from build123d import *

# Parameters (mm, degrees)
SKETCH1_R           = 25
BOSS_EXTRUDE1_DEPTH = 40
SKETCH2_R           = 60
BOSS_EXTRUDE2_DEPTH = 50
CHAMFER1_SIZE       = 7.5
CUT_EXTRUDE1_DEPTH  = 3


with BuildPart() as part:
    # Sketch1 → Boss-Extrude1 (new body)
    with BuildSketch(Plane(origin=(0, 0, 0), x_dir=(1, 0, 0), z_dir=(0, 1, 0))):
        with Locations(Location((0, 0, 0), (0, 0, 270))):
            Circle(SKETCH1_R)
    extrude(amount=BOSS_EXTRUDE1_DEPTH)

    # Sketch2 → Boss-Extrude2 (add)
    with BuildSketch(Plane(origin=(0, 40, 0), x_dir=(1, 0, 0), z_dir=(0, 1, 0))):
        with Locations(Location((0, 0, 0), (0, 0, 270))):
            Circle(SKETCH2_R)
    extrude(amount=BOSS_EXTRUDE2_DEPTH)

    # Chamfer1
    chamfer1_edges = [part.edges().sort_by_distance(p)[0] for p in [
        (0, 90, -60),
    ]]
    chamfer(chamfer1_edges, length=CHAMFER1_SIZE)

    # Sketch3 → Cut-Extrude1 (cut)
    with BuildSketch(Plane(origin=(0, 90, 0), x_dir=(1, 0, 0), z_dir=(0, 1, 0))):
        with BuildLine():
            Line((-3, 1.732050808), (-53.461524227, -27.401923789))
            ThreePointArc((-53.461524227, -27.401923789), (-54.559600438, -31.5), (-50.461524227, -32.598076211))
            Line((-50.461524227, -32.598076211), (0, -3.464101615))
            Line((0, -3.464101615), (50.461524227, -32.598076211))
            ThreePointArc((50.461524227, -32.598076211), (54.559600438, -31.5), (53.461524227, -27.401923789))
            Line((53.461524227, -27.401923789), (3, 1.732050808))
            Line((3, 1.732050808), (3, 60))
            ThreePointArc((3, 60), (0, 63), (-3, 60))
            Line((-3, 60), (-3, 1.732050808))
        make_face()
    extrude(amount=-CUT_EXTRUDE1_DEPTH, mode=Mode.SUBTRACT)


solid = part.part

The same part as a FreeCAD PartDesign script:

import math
import FreeCAD as App
import Part
import Sketcher

V = App.Vector
Q = App.Units.Quantity


def edges_at(feature, points):
    """Names of the edges that pass closest to the given points."""
    edges = feature.Shape.Edges
    near = lambda p: min(range(len(edges)), key=lambda i: edges[i].distToShape(Part.Vertex(*p))[0])
    return sorted({f"Edge{near(p) + 1}" for p in points})

doc = App.newDocument("Part")
body = doc.addObject("PartDesign::Body", "Body")

# Sketch on XZ plane
sketch1 = doc.addObject("Sketcher::SketchObject", "Sketch")
body.addObject(sketch1)
sketch1.AttachmentSupport = (doc.XZ_Plane, [""])
sketch1.MapMode = "FlatFace"
sketch1.addGeometry(Part.Circle(V(0, 0, 0), V(0, 0, 1), 25), False)
sketch1.addConstraint(Sketcher.Constraint("Coincident", 0, 3, -1, 1))
sketch1.addConstraint(Sketcher.Constraint("Diameter", 0, Q("50 mm")))
pad1 = doc.addObject("PartDesign::Pad", "Pad")
body.addObject(pad1)
pad1.Profile = sketch1
pad1.Length = 40
pad1.Reversed = True

# Sketch on XZ plane
sketch2 = doc.addObject("Sketcher::SketchObject", "Sketch001")
body.addObject(sketch2)
sketch2.AttachmentSupport = (doc.XZ_Plane, [""])
sketch2.MapMode = "FlatFace"
sketch2.AttachmentOffset = App.Placement(V(0, 0, -40), App.Rotation())
sketch2.addGeometry(Part.Circle(V(0, 0, 0), V(0, 0, 1), 60), False)
sketch2.addConstraint(Sketcher.Constraint("Coincident", 0, 3, -1, 1))
sketch2.addConstraint(Sketcher.Constraint("Diameter", 0, Q("120 mm")))
pad2 = doc.addObject("PartDesign::Pad", "Pad001")
body.addObject(pad2)
pad2.Profile = sketch2
pad2.Length = 50
pad2.Reversed = True
doc.recompute()

chamfer = doc.addObject("PartDesign::Chamfer", "Chamfer")
body.addObject(chamfer)
chamfer.Base = (pad2, edges_at(pad2, [(0, 90, -60)]))
chamfer.Size = 7.5

# Sketch on XZ plane
sketch3 = doc.addObject("Sketcher::SketchObject", "Sketch002")
body.addObject(sketch3)
sketch3.AttachmentSupport = (doc.XZ_Plane, [""])
sketch3.MapMode = "FlatFace"
sketch3.AttachmentOffset = App.Placement(V(0, 0, -90), App.Rotation())
sketch3.addGeometry(Part.LineSegment(V(-3, -1.7, 0), V(-53.5, 27.4, 0)), False)
sketch3.addGeometry(Part.ArcOfCircle(Part.Circle(V(-52, 30, 0), V(0, 0, 1), 3), math.radians(60), math.radians(240)), False)
sketch3.addGeometry(Part.LineSegment(V(-50.5, 32.6, 0), V(0, 3.5, 0)), False)
sketch3.addGeometry(Part.LineSegment(V(0, 3.5, 0), V(50.5, 32.6, 0)), False)
sketch3.addGeometry(Part.ArcOfCircle(Part.Circle(V(52, 30, 0), V(0, 0, 1), 3), math.radians(-60), math.radians(120)), False)
sketch3.addGeometry(Part.LineSegment(V(53.5, 27.4, 0), V(3, -1.7, 0)), False)
sketch3.addGeometry(Part.LineSegment(V(3, -1.7, 0), V(3, -60, 0)), False)
sketch3.addGeometry(Part.ArcOfCircle(Part.Circle(V(0, -60, 0), V(0, 0, 1), 3), math.radians(180), math.radians(360)), False)
sketch3.addGeometry(Part.LineSegment(V(-3, -60, 0), V(-3, -1.7, 0)), False)
sketch3.addConstraint(Sketcher.Constraint("Tangent", 0, 2, 1, 2))
sketch3.addConstraint(Sketcher.Constraint("Tangent", 1, 1, 2, 1))
sketch3.addConstraint(Sketcher.Constraint("Coincident", 2, 2, 3, 1))
sketch3.addConstraint(Sketcher.Constraint("Tangent", 3, 2, 4, 2))
sketch3.addConstraint(Sketcher.Constraint("Tangent", 4, 1, 5, 1))
sketch3.addConstraint(Sketcher.Constraint("Coincident", 5, 2, 6, 1))
sketch3.addConstraint(Sketcher.Constraint("Tangent", 6, 2, 7, 2))
sketch3.addConstraint(Sketcher.Constraint("Tangent", 7, 1, 8, 1))
sketch3.addConstraint(Sketcher.Constraint("Coincident", 8, 2, 0, 1))
sketch3.addConstraint(Sketcher.Constraint("Vertical", 6))
sketch3.addConstraint(Sketcher.Constraint("Vertical", 8))
sketch3.addConstraint(Sketcher.Constraint("Equal", 1, 4))
sketch3.addConstraint(Sketcher.Constraint("Equal", 4, 7))
sketch3.addConstraint(Sketcher.Constraint("Symmetric", 1, 3, 4, 3, -2))
sketch3.addConstraint(Sketcher.Constraint("Symmetric", 5, 2, 8, 2, -2))
sketch3.addConstraint(Sketcher.Constraint("PointOnObject", 2, 2, -2))
sketch3.addConstraint(Sketcher.Constraint("Parallel", 0, 2))
sketch3.addConstraint(Sketcher.Constraint("Equal", 0, 2))
sketch3.addConstraint(Sketcher.Constraint("Radius", 1, Q("3 mm")))
sketch3.addConstraint(Sketcher.Constraint("DistanceY", -1, 1, 1, 3, Q("30 mm")))
sketch3.addConstraint(Sketcher.Constraint("DistanceY", 7, 3, -1, 1, Q("60 mm")))
sketch3.addConstraint(Sketcher.Constraint("DistanceY", 6, 2, 6, 1, Q("58.267949 mm")))
pocket1 = doc.addObject("PartDesign::Pocket", "Pocket")
body.addObject(pocket1)
pocket1.Profile = sketch3
pocket1.Length = 3
pocket1.Reversed = True

doc.recompute()
